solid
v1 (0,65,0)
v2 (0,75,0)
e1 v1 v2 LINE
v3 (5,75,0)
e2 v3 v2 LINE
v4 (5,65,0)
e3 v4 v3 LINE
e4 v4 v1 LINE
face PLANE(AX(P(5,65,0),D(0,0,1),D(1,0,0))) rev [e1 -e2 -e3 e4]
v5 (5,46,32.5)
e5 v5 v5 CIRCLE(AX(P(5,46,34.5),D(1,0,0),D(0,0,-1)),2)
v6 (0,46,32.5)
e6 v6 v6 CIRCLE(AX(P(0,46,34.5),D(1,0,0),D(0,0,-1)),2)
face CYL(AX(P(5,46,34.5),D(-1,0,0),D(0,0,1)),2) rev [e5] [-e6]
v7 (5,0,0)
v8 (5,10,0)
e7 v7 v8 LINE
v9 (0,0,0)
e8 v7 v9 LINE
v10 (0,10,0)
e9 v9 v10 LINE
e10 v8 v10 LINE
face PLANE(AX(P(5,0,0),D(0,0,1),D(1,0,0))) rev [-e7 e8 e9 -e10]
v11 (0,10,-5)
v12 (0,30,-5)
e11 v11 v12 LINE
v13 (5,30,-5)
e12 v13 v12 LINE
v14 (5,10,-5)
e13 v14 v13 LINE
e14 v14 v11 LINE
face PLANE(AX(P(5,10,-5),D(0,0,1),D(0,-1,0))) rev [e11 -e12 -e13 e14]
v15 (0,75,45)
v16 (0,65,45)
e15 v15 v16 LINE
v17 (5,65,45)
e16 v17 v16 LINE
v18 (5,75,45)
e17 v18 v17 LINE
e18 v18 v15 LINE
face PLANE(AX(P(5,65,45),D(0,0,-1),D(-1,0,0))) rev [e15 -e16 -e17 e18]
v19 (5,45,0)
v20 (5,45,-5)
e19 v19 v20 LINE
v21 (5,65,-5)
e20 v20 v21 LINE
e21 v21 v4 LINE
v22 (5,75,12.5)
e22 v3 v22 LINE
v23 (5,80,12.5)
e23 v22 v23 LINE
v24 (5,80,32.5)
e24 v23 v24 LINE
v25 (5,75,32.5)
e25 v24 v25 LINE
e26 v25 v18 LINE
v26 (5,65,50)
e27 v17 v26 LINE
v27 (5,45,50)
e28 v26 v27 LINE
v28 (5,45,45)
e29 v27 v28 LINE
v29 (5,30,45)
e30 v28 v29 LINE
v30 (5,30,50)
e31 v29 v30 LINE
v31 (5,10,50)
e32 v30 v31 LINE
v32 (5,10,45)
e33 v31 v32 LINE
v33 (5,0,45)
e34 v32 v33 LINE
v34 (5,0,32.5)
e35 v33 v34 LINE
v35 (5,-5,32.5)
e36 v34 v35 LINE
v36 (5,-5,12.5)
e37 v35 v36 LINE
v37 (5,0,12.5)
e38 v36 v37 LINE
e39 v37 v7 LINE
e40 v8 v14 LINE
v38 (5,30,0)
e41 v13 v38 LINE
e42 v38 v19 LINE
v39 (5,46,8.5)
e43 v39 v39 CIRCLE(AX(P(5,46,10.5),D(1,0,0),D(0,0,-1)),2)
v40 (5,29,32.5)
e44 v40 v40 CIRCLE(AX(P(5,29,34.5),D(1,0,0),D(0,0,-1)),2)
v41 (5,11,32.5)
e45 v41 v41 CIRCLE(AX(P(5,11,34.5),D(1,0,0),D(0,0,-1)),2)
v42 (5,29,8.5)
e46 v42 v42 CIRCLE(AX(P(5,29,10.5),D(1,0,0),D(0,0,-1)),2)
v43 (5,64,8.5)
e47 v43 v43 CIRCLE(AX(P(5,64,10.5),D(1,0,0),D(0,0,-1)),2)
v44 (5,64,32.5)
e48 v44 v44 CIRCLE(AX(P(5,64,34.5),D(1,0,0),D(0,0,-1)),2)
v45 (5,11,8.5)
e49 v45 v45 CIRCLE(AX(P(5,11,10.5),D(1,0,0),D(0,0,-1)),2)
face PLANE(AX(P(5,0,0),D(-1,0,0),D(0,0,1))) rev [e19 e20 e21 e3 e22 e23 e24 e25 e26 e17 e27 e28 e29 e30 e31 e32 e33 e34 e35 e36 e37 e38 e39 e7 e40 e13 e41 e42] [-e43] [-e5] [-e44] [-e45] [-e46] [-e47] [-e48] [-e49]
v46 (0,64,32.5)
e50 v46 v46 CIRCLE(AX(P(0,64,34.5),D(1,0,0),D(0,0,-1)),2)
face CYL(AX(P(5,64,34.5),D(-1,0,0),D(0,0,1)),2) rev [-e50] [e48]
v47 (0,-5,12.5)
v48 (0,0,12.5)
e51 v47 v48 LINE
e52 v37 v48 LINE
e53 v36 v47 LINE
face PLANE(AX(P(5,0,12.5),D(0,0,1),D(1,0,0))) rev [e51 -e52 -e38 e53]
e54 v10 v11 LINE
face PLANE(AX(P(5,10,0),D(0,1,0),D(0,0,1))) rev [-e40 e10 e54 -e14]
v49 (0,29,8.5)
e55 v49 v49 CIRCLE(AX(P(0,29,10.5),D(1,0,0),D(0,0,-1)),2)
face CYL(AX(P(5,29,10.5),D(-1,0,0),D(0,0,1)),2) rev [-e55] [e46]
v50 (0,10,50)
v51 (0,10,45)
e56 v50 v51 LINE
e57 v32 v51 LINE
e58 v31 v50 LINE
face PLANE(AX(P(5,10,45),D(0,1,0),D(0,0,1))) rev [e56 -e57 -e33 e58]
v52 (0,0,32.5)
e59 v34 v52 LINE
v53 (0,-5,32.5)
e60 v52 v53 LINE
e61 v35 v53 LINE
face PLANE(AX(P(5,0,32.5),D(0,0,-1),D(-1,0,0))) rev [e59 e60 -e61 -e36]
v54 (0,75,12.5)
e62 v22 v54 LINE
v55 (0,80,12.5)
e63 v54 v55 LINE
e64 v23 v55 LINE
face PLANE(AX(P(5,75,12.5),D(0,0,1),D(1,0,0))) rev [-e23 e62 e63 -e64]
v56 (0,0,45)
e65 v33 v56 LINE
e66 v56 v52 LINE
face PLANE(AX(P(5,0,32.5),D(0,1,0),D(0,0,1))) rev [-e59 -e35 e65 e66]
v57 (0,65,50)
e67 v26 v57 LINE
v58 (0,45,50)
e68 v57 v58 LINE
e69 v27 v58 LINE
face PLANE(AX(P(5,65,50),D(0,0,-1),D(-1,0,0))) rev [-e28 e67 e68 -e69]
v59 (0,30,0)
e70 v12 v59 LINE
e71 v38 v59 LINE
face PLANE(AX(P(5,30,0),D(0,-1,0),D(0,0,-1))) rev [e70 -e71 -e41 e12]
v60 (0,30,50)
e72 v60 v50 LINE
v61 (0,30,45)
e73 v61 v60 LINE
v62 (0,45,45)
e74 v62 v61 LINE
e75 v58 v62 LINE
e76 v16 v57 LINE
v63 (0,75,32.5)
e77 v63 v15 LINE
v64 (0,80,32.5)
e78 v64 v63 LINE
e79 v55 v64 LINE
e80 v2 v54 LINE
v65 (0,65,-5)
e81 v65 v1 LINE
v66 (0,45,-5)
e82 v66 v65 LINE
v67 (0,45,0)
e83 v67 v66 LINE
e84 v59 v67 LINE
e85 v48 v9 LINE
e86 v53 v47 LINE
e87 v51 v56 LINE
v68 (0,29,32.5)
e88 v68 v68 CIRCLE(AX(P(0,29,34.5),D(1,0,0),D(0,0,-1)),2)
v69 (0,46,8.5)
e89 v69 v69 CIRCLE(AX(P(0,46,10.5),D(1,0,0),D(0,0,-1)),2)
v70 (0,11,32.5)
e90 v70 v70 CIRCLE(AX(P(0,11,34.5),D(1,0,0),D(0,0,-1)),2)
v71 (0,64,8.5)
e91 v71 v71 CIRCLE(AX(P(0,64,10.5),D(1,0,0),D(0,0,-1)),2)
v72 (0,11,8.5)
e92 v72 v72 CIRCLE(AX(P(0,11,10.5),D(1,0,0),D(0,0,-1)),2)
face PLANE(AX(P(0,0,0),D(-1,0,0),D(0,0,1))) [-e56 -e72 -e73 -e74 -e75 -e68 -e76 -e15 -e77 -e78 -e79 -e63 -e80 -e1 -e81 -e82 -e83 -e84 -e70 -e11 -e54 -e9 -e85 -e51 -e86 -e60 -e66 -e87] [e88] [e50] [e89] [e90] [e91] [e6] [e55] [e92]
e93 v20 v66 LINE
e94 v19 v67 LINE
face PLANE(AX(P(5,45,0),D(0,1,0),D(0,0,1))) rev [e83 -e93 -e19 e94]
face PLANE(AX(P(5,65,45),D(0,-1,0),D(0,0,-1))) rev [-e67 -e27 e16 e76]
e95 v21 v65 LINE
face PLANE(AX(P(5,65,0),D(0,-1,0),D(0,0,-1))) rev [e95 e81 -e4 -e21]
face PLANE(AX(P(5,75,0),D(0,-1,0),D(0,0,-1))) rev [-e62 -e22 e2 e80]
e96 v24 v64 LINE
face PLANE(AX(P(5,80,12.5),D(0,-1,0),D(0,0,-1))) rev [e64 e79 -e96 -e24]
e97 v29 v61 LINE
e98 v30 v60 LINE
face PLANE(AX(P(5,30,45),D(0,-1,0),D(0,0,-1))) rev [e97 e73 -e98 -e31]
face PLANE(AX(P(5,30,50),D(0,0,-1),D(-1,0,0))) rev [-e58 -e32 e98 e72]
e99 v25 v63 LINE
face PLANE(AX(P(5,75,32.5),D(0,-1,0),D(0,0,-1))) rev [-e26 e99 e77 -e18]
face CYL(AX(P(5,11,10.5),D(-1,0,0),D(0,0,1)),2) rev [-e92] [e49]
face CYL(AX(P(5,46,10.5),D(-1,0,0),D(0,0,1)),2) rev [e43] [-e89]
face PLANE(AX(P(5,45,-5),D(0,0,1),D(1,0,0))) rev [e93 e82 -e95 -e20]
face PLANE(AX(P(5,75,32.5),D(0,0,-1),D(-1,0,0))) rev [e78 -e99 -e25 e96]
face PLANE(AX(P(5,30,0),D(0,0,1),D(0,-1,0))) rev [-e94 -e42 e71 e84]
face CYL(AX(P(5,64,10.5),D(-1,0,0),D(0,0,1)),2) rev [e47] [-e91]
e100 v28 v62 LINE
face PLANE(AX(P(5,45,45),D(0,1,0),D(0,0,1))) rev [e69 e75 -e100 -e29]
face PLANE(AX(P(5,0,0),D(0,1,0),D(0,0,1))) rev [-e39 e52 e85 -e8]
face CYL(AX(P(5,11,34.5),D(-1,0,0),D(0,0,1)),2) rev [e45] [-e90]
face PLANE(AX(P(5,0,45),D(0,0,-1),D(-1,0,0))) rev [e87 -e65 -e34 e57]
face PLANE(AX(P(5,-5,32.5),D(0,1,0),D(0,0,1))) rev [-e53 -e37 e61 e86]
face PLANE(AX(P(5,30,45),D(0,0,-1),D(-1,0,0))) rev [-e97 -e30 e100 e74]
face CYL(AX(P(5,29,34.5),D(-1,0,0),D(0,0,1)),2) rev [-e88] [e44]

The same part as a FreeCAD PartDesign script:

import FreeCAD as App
import Part
import Sketcher
from FreeCAD import Vector


def add_polygon(sketch, points):
    """Adds a closed chain of lines whose ends are joined by coincident constraints."""
    first, n = sketch.GeometryCount, len(points)
    for a, b in zip(points, points[1:] + points[:1]):
        sketch.addGeometry(Part.LineSegment(App.Vector(*a, 0), App.Vector(*b, 0)), False)
    for i in range(n):
        sketch.addConstraint(Sketcher.Constraint("Coincident", first + i, 2, first + (i + 1) % n, 1))

doc = App.newDocument("Part")
params = doc.addObject("Spreadsheet::Sheet", "Params")
for row, (alias, value) in enumerate([
    ("sketch1_diameter", "4 mm"),
    ("sketch1_width", "10 mm"),
    ("sketch1_width2", "20 mm"),
    ("sketch1_width3", "15 mm"),
    ("sketch1_width4", "5 mm"),
    ("pad1_length", "5 mm"),
], start=1):
    params.set(f"A{row}", alias)
    params.set(f"B{row}", "=" + value)
    params.setAlias(f"B{row}", alias)

body = doc.addObject("PartDesign::Body", "Body")

# Sketch on YZ plane
sketch1 = body.newObject("Sketcher::SketchObject", "Sketch")
sketch1.AttachmentSupport = (doc.getObject("YZ_Plane"), [""])
sketch1.MapMode = "FlatFace"
add_polygon(sketch1, [(75, 32.5), (75, 45), (65, 45), (65, 50), (45, 50), (45, 45), (30, 45), (30, 50), (10, 50), (10, 45), (0, 45), (0, 32.5), (-5, 32.5), (-5, 12.5), (0, 12.5), (0, 0), (10, 0), (10, -5), (30, -5), (30, 0), (45, 0), (45, -5), (65, -5), (65, 0), (75, 0), (75, 12.5), (80, 12.5), (80, 32.5)])  # lines 0-27
sketch1.addGeometry(Part.Circle(Vector(11, 34.5, 0), Vector(0, 0, 1), 2), False)  # 28
sketch1.addGeometry(Part.Circle(Vector(29, 34.5, 0), Vector(0, 0, 1), 2), False)  # 29
sketch1.addGeometry(Part.Circle(Vector(11, 10.5, 0), Vector(0, 0, 1), 2), False)  # 30
sketch1.addGeometry(Part.Circle(Vector(29, 10.5, 0), Vector(0, 0, 1), 2), False)  # 31
sketch1.addGeometry(Part.Circle(Vector(46, 34.5, 0), Vector(0, 0, 1), 2), False)  # 32
sketch1.addGeometry(Part.Circle(Vector(64, 34.5, 0), Vector(0, 0, 1), 2), False)  # 33
sketch1.addGeometry(Part.Circle(Vector(46, 10.5, 0), Vector(0, 0, 1), 2), False)  # 34
sketch1.addGeometry(Part.Circle(Vector(64, 10.5, 0), Vector(0, 0, 1), 2), False)  # 35
sketch1.addConstraint(Sketcher.Constraint("Vertical", 0))
sketch1.addConstraint(Sketcher.Constraint("Horizontal", 1))
sketch1.addConstraint(Sketcher.Constraint("Vertical", 2))
sketch1.addConstraint(Sketcher.Constraint("Horizontal", 3))
sketch1.addConstraint(Sketcher.Constraint("Vertical", 4))
sketch1.addConstraint(Sketcher.Constraint("Horizontal", 5))
sketch1.addConstraint(Sketcher.Constraint("Vertical", 6))
sketch1.addConstraint(Sketcher.Constraint("Horizontal", 7))
sketch1.addConstraint(Sketcher.Constraint("Vertical", 8))
sketch1.addConstraint(Sketcher.Constraint("Horizontal", 9))
sketch1.addConstraint(Sketcher.Constraint("Vertical", 10))
sketch1.addConstraint(Sketcher.Constraint("Horizontal", 11))
sketch1.addConstraint(Sketcher.Constraint("Vertical", 12))
sketch1.addConstraint(Sketcher.Constraint("Horizontal", 13))
sketch1.addConstraint(Sketcher.Constraint("Vertical", 14))
sketch1.addConstraint(Sketcher.Constraint("Horizontal", 15))
sketch1.addConstraint(Sketcher.Constraint("Vertical", 16))
sketch1.addConstraint(Sketcher.Constraint("Horizontal", 17))
sketch1.addConstraint(Sketcher.Constraint("Vertical", 18))
sketch1.addConstraint(Sketcher.Constraint("Horizontal", 19))
sketch1.addConstraint(Sketcher.Constraint("Vertical", 20))
sketch1.addConstraint(Sketcher.Constraint("Horizontal", 21))
sketch1.addConstraint(Sketcher.Constraint("Vertical", 22))
sketch1.addConstraint(Sketcher.Constraint("Horizontal", 23))
sketch1.addConstraint(Sketcher.Constraint("Vertical", 24))
sketch1.addConstraint(Sketcher.Constraint("Horizontal", 25))
sketch1.addConstraint(Sketcher.Constraint("Vertical", 26))
sketch1.addConstraint(Sketcher.Constraint("Horizontal", 27))
sketch1.addConstraint(Sketcher.Constraint("Coincident", 14, 2, -1, 1))
sketch1.addConstraint(Sketcher.Constraint("Equal", 28, 29))
sketch1.addConstraint(Sketcher.Constraint("Equal", 29, 30))
sketch1.addConstraint(Sketcher.Constraint("Equal", 30, 31))
sketch1.addConstraint(Sketcher.Constraint("Equal", 31, 32))
sketch1.addConstraint(Sketcher.Constraint("Equal", 32, 33))
sketch1.addConstraint(Sketcher.Constraint("Equal", 33, 34))
sketch1.addConstraint(Sketcher.Constraint("Equal", 34, 35))
sketch1.addConstraint(Sketcher.Constraint("PointOnObject", 9, 2, -2))
sketch1.addConstraint(Sketcher.Constraint("PointOnObject", 18, 2, -1))
sketch1.addConstraint(Sketcher.Constraint("PointOnObject", 22, 2, -1))
sketch1.addConstraint(Sketcher.Constraint("Horizontal", 28, 3, 29, 3))
sketch1.addConstraint(Sketcher.Constraint("Horizontal", 30, 3, 31, 3))
sketch1.addConstraint(Sketcher.Constraint("Horizontal", 29, 3, 32, 3))
sketch1.addConstraint(Sketcher.Constraint("Horizontal", 32, 3, 33, 3))
sketch1.addConstraint(Sketcher.Constraint("Horizontal", 31, 3, 34, 3))
sketch1.addConstraint(Sketcher.Constraint("Horizontal", 34, 3, 35, 3))
sketch1.addConstraint(Sketcher.Constraint("Horizontal", 1, 2, 4, 2))
sketch1.addConstraint(Sketcher.Constraint("Horizontal", 3, 2, 6, 2))
sketch1.addConstraint(Sketcher.Constraint("Horizontal", 5, 2, 8, 2))
sketch1.addConstraint(Sketcher.Constraint("Horizontal", 17, 2, 20, 2))
sketch1.addConstraint(Sketcher.Constraint("Horizontal", 13, 2, 24, 2))
sketch1.addConstraint(Sketcher.Constraint("Horizontal", 11, 2, 26, 2))
sketch1.addConstraint(Sketcher.Constraint("Vertical", 28, 3, 30, 3))
sketch1.addConstraint(Sketcher.Constraint("Vertical", 29, 3, 31, 3))
sketch1.addConstraint(Sketcher.Constraint("Vertical", 32, 3, 34, 3))
sketch1.addConstraint(Sketcher.Constraint("Vertical", 33, 3, 35, 3))
sketch1.addConstraint(Sketcher.Constraint("Vertical", 8, 2, 15, 2))
sketch1.addConstraint(Sketcher.Constraint("Vertical", 6, 2, 17, 2))
sketch1.addConstraint(Sketcher.Constraint("Vertical", 4, 2, 19, 2))
sketch1.addConstraint(Sketcher.Constraint("Vertical", 2, 2, 21, 2))
sketch1.addConstraint(Sketcher.Constraint("Vertical", 0, 2, 23, 2))
sketch1.addConstraint(Sketcher.Constraint("Equal", 3, 7))
sketch1.addConstraint(Sketcher.Constraint("Equal", 1, 9))
sketch1.addConstraint(Sketcher.Constraint("Equal", 13, 25))
sketch1.addConstraint(Sketcher.Constraint("Equal", 27, 2))
sketch1.addConstraint(Sketcher.Constraint("Equal", 21, 12))
sketch1.addConstraint(Sketcher.Constraint("Equal", 10, 14))
sketch1.addConstraint(Sketcher.Constraint("Equal", 8, 16))
sketch1.addConstraint(Sketcher.Constraint("Diameter", 28, 4.0))
sketch1.addConstraint(Sketcher.Constraint("DistanceX", 1, 2, 1, 1, 10.0))
sketch1.addConstraint(Sketcher.Constraint("DistanceX", 3, 2, 3, 1, 20.0))
sketch1.addConstraint(Sketcher.Constraint("DistanceX", 5, 2, 5, 1, 15.0))
sketch1.addConstraint(Sketcher.Constraint("DistanceX", 11, 2, 11, 1, 5.0))
sketch1.addConstraint(Sketcher.Constraint("DistanceY", 0, 1, 0, 2, 12.5))
sketch1.addConstraint(Sketcher.Constraint("DistanceX", -1, 1, 28, 3, 11.0))
sketch1.addConstraint(Sketcher.Constraint("DistanceX", -1, 1, 29, 3, 29.0))
sketch1.addConstraint(Sketcher.Constraint("DistanceX", -1, 1, 32, 3, 46.0))
sketch1.addConstraint(Sketcher.Constraint("DistanceX", -1, 1, 33, 3, 64.0))
sketch1.addConstraint(Sketcher.Constraint("DistanceY", 30, 3, 28, 3, 24.0))
sketch1.addConstraint(Sketcher.Constraint("DistanceY", 10, 2, 28, 3, 2.0))
sketch1.setExpression("Constraints[95]", "Params.sketch1_diameter")
sketch1.setExpression("Constraints[96]", "Params.sketch1_width")
sketch1.setExpression("Constraints[97]", "Params.sketch1_width2")
sketch1.setExpression("Constraints[98]", "Params.sketch1_width3")
sketch1.setExpression("Constraints[99]", "Params.sketch1_width4")
pad1 = body.newObject("PartDesign::Pad", "Pad")
pad1.Profile = sketch1
pad1.setExpression("Length", "Params.pad1_length")

doc.recompute()
